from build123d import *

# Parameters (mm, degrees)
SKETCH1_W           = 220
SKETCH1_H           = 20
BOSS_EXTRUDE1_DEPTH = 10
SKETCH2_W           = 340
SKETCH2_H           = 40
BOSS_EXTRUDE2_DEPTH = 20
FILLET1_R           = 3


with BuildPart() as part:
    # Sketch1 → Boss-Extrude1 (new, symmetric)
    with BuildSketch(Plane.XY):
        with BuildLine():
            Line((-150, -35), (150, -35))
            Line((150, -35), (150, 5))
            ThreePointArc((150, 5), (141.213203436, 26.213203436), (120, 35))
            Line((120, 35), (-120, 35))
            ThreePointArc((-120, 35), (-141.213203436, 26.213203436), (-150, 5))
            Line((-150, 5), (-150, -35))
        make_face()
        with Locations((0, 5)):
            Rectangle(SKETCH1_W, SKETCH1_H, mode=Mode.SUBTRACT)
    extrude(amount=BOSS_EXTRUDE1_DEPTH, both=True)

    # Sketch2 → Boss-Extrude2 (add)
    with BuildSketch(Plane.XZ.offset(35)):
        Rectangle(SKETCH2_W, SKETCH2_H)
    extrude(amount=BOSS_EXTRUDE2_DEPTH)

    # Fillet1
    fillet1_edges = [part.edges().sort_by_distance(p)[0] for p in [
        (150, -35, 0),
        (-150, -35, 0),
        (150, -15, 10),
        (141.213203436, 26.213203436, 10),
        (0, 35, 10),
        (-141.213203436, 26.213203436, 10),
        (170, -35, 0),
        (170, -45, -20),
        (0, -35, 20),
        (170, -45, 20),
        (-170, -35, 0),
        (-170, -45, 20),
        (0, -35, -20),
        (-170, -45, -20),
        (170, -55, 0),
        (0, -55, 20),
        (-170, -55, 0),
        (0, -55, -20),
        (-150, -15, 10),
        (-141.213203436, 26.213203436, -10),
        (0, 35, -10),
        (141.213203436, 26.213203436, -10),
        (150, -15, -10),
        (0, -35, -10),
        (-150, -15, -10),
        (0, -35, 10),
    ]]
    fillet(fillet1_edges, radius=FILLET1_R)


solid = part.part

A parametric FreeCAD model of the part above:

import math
import FreeCAD as App
import Part
import Sketcher
from FreeCAD import Vector
Q = App.Units.Quantity


def edges_at(feature, points):
    """Names of the edges that pass closest to the given points."""
    edges = feature.Shape.Edges
    near = lambda p: min(range(len(edges)), key=lambda i: edges[i].distToShape(Part.Vertex(*p))[0])
    return sorted({f"Edge{near(p) + 1}" for p in points})


def add_polygon(sketch, points):
    """Adds a closed chain of lines whose ends are joined by coincident constraints."""
    first, n = sketch.GeometryCount, len(points)
    for a, b in zip(points, points[1:] + points[:1]):
        sketch.addGeometry(Part.LineSegment(App.Vector(*a, 0), App.Vector(*b, 0)), False)
    for i in range(n):
        sketch.addConstraint(Sketcher.Constraint("Coincident", first + i, 2, first + (i + 1) % n, 1))

doc = App.newDocument("Part")
params = doc.addObject("Spreadsheet::Sheet", "Params")
for row, (alias, value) in enumerate([
    ("sketch1_radius", "30 mm"),
    ("sketch1_width", "300 mm"),
    ("sketch1_width2", "220 mm"),
    ("sketch1_height", "40 mm"),
    ("sketch1_height2", "20 mm"),
    ("pad1_length", "20 mm"),
    ("sketch2_width", "340 mm"),
    ("sketch2_height", "40 mm"),
    ("pad2_length", "20 mm"),
    ("fillet_radius", "3 mm"),
], start=1):
    params.set(f"A{row}", alias)
    params.set(f"B{row}", "=" + value)
    params.setAlias(f"B{row}", alias)

body = doc.addObject("PartDesign::Body", "Body")

# Sketch on XY plane
sketch1 = body.newObject("Sketcher::SketchObject", "Sketch")
sketch1.AttachmentSupport = (doc.getObject("XY_Plane"), [""])
sketch1.MapMode = "FlatFace"
sketch1.addGeometry(Part.LineSegment(Vector(-150, -35, 0), Vector(150, -35, 0)), False)  # 0
sketch1.addGeometry(Part.LineSegment(Vector(150, -35, 0), Vector(150, 5, 0)), False)  # 1
sketch1.addGeometry(Part.ArcOfCircle(Part.Circle(Vector(120, 5, 0), Vector(0, 0, 1), 30), math.radians(0), math.radians(90)), False)  # 2
sketch1.addGeometry(Part.LineSegment(Vector(120, 35, 0), Vector(-120, 35, 0)), False)  # 3
sketch1.addGeometry(Part.ArcOfCircle(Part.Circle(Vector(-120, 5, 0), Vector(0, 0, 1), 30), math.radians(90), math.radians(180)), False)  # 4
sketch1.addGeometry(Part.LineSegment(Vector(-150, 5, 0), Vector(-150, -35, 0)), False)  # 5
add_polygon(sketch1, [(110, -5), (-110, -5), (-110, 15), (110, 15)])  # lines 6-9
sketch1.addConstraint(Sketcher.Constraint("Coincident", 0, 2, 1, 1))
sketch1.addConstraint(Sketcher.Constraint("Tangent", 1, 2, 2, 1))
sketch1.addConstraint(Sketcher.Constraint("Tangent", 2, 2, 3, 1))
sketch1.addConstraint(Sketcher.Constraint("Tangent", 3, 2, 4, 1))
sketch1.addConstraint(Sketcher.Constraint("Tangent", 4, 2, 5, 1))
sketch1.addConstraint(Sketcher.Constraint("Coincident", 5, 2, 0, 1))
sketch1.addConstraint(Sketcher.Constraint("Horizontal", 0))
sketch1.addConstraint(Sketcher.Constraint("Vertical", 1))
sketch1.addConstraint(Sketcher.Constraint("Horizontal", 3))
sketch1.addConstraint(Sketcher.Constraint("Vertical", 5))
sketch1.addConstraint(Sketcher.Constraint("Horizontal", 6))
sketch1.addConstraint(Sketcher.Constraint("Vertical", 7))
sketch1.addConstraint(Sketcher.Constraint("Horizontal", 8))
sketch1.addConstraint(Sketcher.Constraint("Vertical", 9))
sketch1.addConstraint(Sketcher.Constraint("Equal", 2, 4))
sketch1.addConstraint(Sketcher.Constraint("Radius", 2, Q("30 mm")))
sketch1.addConstraint(Sketcher.Constraint("DistanceX", 0, 1, 0, 2, Q("300 mm")))
sketch1.addConstraint(Sketcher.Constraint("DistanceX", 6, 2, 6, 1, Q("220 mm")))
sketch1.addConstraint(Sketcher.Constraint("DistanceY", 1, 1, 1, 2, Q("40 mm")))
sketch1.addConstraint(Sketcher.Constraint("DistanceY", 7, 1, 7, 2, Q("20 mm")))
sketch1.addConstraint(Sketcher.Constraint("DistanceX", -1, 1, 2, 3, Q("120 mm")))
sketch1.addConstraint(Sketcher.Constraint("DistanceY", -1, 1, 2, 3, Q("5 mm")))
sketch1.addConstraint(Sketcher.Constraint("DistanceX", 6, 2, -1, 1, Q("110 mm")))
sketch1.addConstraint(Sketcher.Constraint("DistanceY", 6, 2, -1, 1, Q("5 mm")))
sketch1.setExpression("Constraints[19]", "Params.sketch1_radius")
sketch1.setExpression("Constraints[20]", "Params.sketch1_width")
sketch1.setExpression("Constraints[21]", "Params.sketch1_width2")
sketch1.setExpression("Constraints[22]", "Params.sketch1_height")
sketch1.setExpression("Constraints[23]", "Params.sketch1_height2")
pad1 = body.newObject("PartDesign::Pad", "Pad")
pad1.Profile = sketch1
pad1.setExpression("Length", "Params.pad1_length")
pad1.Midplane = True

# Sketch on XZ plane
sketch2 = body.newObject("Sketcher::SketchObject", "Sketch001")
sketch2.AttachmentSupport = (doc.getObject("XZ_Plane"), [""])
sketch2.MapMode = "FlatFace"
sketch2.AttachmentOffset = App.Placement(Vector(0, 0, 35), App.Rotation())
add_polygon(sketch2, [(-170, 20), (-170, -20), (170, -20), (170, 20)])  # lines 0-3
sketch2.addConstraint(Sketcher.Constraint("Vertical", 0))
sketch2.addConstraint(Sketcher.Constraint("Horizontal", 1))
sketch2.addConstraint(Sketcher.Constraint("Vertical", 2))
sketch2.addConstraint(Sketcher.Constraint("Horizontal", 3))
sketch2.addConstraint(Sketcher.Constraint("Symmetric", 0, 2, 2, 2, -1, 1))
sketch2.addConstraint(Sketcher.Constraint("DistanceX", 1, 1, 1, 2, Q("340 mm")))
sketch2.addConstraint(Sketcher.Constraint("DistanceY", 0, 2, 0, 1, Q("40 mm")))
sketch2.setExpression("Constraints[9]", "Params.sketch2_width")
sketch2.setExpression("Constraints[10]", "Params.sketch2_height")
pad2 = body.newObject("PartDesign::Pad", "Pad001")
pad2.Profile = sketch2
pad2.setExpression("Length", "Params.pad2_length")
doc.recompute()

fillet = body.newObject("PartDesign::Fillet", "Fillet")
fillet.Base = (pad2, edges_at(pad2, [
    (150, -35, 0),
    (-150, -35, 0),
    (150, -15, 10),
    (141.213, 26.213, 10),
    (0, 35, 10),
    (-141.213, 26.213, 10),
    (170, -35, 0),
    (170, -45, -20),
    (0, -35, 20),
    (170, -45, 20),
    (-170, -35, 0),
    (-170, -45, 20),
    (0, -35, -20),
    (-170, -45, -20),
    (170, -55, 0),
    (0, -55, 20),
    (-170, -55, 0),
    (0, -55, -20),
    (-150, -15, 10),
    (-141.213, 26.213, -10),
    (0, 35, -10),
    (141.213, 26.213, -10),
    (150, -15, -10),
    (0, -35, -10),
    (-150, -15, -10),
    (0, -35, 10),
]))
fillet.setExpression("Radius", "Params.fillet_radius")

doc.recompute()
